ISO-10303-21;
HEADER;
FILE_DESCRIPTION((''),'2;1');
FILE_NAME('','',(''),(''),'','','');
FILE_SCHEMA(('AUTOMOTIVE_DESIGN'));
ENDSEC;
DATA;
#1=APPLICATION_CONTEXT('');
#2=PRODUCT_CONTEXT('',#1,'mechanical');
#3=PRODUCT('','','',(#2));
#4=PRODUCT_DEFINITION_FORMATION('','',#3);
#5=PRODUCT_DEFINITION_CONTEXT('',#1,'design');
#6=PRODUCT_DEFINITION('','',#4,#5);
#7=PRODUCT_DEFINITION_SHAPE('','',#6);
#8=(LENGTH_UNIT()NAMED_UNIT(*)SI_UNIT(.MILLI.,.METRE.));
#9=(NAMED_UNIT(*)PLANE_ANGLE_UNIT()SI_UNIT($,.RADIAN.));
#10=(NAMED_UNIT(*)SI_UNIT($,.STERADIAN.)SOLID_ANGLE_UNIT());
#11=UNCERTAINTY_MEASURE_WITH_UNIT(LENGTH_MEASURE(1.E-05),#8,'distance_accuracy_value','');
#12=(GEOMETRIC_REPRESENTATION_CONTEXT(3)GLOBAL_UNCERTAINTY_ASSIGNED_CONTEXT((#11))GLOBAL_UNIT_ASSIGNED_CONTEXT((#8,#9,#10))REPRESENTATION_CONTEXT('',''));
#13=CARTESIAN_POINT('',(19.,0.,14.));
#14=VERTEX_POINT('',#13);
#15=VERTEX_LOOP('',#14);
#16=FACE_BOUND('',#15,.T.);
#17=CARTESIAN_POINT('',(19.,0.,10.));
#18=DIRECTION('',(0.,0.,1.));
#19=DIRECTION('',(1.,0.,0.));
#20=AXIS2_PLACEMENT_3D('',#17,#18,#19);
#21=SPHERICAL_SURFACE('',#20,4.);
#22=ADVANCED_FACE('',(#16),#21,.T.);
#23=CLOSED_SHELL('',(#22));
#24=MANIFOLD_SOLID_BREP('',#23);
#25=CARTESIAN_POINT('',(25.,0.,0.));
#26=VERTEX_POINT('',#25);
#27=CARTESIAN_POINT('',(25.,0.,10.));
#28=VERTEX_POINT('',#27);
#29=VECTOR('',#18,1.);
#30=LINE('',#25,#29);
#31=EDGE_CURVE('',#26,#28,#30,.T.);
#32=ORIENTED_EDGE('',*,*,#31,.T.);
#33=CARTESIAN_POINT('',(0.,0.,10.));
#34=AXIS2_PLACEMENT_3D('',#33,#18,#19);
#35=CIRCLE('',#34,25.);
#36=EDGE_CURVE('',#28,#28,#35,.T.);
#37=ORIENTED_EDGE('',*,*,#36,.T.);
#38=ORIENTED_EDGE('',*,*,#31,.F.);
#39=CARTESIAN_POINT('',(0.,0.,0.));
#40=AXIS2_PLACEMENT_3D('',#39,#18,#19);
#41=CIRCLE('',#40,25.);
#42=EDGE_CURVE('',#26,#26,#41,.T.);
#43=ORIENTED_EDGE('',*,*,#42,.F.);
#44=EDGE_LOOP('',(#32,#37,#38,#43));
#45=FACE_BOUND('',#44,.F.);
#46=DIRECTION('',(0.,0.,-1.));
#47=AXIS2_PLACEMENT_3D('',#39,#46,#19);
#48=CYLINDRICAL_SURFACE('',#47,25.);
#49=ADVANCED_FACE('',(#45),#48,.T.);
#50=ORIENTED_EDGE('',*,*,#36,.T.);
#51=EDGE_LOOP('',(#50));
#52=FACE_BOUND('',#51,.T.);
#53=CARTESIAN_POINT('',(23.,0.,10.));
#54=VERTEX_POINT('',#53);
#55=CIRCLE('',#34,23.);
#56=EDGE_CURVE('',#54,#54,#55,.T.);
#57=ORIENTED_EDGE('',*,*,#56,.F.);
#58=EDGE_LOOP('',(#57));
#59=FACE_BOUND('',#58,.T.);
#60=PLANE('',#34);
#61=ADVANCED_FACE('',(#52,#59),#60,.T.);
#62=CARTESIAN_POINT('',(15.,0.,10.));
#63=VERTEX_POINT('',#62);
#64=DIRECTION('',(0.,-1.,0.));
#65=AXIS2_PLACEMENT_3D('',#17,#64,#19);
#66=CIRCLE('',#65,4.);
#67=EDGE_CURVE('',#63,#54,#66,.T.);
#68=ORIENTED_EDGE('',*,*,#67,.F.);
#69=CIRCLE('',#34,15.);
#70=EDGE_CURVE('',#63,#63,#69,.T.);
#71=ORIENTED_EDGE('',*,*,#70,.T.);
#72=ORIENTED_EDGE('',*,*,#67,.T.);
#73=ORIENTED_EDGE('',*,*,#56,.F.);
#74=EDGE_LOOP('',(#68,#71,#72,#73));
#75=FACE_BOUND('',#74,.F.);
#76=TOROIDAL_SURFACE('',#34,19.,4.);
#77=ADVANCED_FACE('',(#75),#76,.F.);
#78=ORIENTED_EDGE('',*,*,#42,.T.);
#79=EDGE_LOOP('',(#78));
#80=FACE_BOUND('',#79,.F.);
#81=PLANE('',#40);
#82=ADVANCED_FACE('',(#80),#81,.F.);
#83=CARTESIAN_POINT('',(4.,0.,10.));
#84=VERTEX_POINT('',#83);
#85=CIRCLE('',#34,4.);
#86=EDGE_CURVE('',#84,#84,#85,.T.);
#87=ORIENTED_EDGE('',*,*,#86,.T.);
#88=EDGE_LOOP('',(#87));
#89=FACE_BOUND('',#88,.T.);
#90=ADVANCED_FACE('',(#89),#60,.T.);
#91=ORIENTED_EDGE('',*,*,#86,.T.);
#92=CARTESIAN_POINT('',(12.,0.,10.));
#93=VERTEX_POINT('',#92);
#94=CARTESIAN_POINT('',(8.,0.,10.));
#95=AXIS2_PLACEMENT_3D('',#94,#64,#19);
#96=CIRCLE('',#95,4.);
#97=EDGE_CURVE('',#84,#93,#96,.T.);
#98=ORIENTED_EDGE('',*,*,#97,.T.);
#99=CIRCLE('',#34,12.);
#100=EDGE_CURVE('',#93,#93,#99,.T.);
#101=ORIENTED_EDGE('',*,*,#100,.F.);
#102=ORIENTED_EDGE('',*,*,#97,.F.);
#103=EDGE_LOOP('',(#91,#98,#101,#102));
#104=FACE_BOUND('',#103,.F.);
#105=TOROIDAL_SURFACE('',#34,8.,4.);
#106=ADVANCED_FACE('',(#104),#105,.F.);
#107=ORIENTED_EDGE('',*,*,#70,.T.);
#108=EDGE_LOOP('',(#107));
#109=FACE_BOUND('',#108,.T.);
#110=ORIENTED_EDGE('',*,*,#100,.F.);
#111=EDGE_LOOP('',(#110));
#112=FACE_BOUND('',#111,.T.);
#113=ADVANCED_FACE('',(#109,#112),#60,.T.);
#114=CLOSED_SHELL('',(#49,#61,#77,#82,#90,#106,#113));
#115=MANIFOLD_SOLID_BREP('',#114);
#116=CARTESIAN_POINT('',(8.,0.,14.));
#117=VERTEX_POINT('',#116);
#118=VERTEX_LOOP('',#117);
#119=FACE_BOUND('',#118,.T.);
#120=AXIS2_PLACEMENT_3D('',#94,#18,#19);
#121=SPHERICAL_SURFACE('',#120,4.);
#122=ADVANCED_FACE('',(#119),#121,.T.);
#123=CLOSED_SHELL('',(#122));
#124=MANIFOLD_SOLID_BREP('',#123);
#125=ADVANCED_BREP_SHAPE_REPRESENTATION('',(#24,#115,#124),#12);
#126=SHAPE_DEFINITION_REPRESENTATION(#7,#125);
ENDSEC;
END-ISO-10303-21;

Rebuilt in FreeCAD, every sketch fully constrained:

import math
import FreeCAD as App
import Part
import Sketcher

doc = App.newDocument("Part")
body = doc.addObject("PartDesign::Body", "Body")

sketch1 = body.newObject("Sketcher::SketchObject", "Sketch")
sketch1.AttachmentSupport = (doc.getObject("XZ_Plane"), [""])
sketch1.MapMode = "FlatFace"
sketch1.addGeometry(Part.Circle(App.Vector(8, 10, 0), App.Vector(0, 0, 1), 4), False)
sketch1.addConstraint(Sketcher.Constraint("Diameter", 0, 8.0))
sketch1.addConstraint(Sketcher.Constraint("DistanceX", -1, 1, 0, 3, 8.0))
sketch1.addConstraint(Sketcher.Constraint("DistanceY", -1, 1, 0, 3, 10.0))
revolution = body.newObject("PartDesign::Revolution", "Revolution")
revolution.Profile = sketch1
revolution.ReferenceAxis = (sketch1, ["V_Axis"])
revolution.Angle = 360
body2 = doc.addObject("PartDesign::Body", "Body001")

sketch2 = body2.newObject("Sketcher::SketchObject", "Sketch001")
sketch2.AttachmentSupport = (doc.getObject("XZ_Plane001"), [""])
sketch2.MapMode = "FlatFace"
sketch2.addGeometry(Part.Circle(App.Vector(19, 10, 0), App.Vector(0, 0, 1), 4), False)
sketch2.addConstraint(Sketcher.Constraint("Diameter", 0, 8.0))
sketch2.addConstraint(Sketcher.Constraint("DistanceX", -1, 1, 0, 3, 19.0))
sketch2.addConstraint(Sketcher.Constraint("DistanceY", -1, 1, 0, 3, 10.0))
revolution2 = body2.newObject("PartDesign::Revolution", "Revolution001")
revolution2.Profile = sketch2
revolution2.ReferenceAxis = (sketch2, ["V_Axis"])
revolution2.Angle = 360
body3 = doc.addObject("PartDesign::Body", "Body002")

sketch3 = body3.newObject("Sketcher::SketchObject", "Sketch002")
sketch3.AttachmentSupport = (doc.getObject("XY_Plane002"), [""])
sketch3.MapMode = "FlatFace"
sketch3.addGeometry(Part.Circle(App.Vector(0, 0, 0), App.Vector(0, 0, 1), 25), False)
sketch3.addConstraint(Sketcher.Constraint("Coincident", 0, 3, -1, 1))
sketch3.addConstraint(Sketcher.Constraint("Diameter", 0, 50.0))
pad1 = body3.newObject("PartDesign::Pad", "Pad")
pad1.Profile = sketch3
pad1.Length = 10
doc.recompute()

boolean = body3.newObject("PartDesign::Boolean", "Boolean")
boolean.Type = "Cut"
boolean.addObjects([body2])
doc.recompute()

boolean2 = body3.newObject("PartDesign::Boolean", "Boolean001")
boolean2.Type = "Cut"
boolean2.addObjects([body])
body4 = doc.addObject("PartDesign::Body", "Body003")

sketch4 = body4.newObject("Sketcher::SketchObject", "Sketch003")
sketch4.AttachmentSupport = (doc.getObject("XZ_Plane003"), [""])
sketch4.MapMode = "FlatFace"
sketch4.addGeometry(Part.ArcOfCircle(Part.Circle(App.Vector(8, 10, 0), App.Vector(0, 0, 1), 4), math.radians(-90), math.radians(90)), False)
sketch4.addGeometry(Part.LineSegment(App.Vector(8, 14, 0), App.Vector(8, 6, 0)), False)
sketch4.addGeometry(Part.LineSegment(App.Vector(8, 6, 0), App.Vector(8, 14, 0)), True)
sketch4.addConstraint(Sketcher.Constraint("Coincident", 0, 1, 1, 2))
sketch4.addConstraint(Sketcher.Constraint("Coincident", 1, 1, 0, 2))
sketch4.addConstraint(Sketcher.Constraint("Vertical", 1))
sketch4.addConstraint(Sketcher.Constraint("Vertical", 2))
sketch4.addConstraint(Sketcher.Constraint("Coincident", 2, 1, 0, 1))
sketch4.addConstraint(Sketcher.Constraint("Equal", 1, 2))
sketch4.addConstraint(Sketcher.Constraint("Radius", 0, 4.0))
sketch4.addConstraint(Sketcher.Constraint("DistanceX", -1, 1, 0, 3, 8.0))
sketch4.addConstraint(Sketcher.Constraint("DistanceY", -1, 1, 0, 3, 10.0))
sketch4.addConstraint(Sketcher.Constraint("DistanceX", -1, 1, 0, 1, 8.0))
revolution3 = body4.newObject("PartDesign::Revolution", "Revolution002")
revolution3.Profile = sketch4
revolution3.ReferenceAxis = (sketch4, ["Axis0"])
revolution3.Angle = 360
body5 = doc.addObject("PartDesign::Body", "Body004")

sketch5 = body5.newObject("Sketcher::SketchObject", "Sketch004")
sketch5.AttachmentSupport = (doc.getObject("XZ_Plane004"), [""])
sketch5.MapMode = "FlatFace"
sketch5.addGeometry(Part.ArcOfCircle(Part.Circle(App.Vector(19, 10, 0), App.Vector(0, 0, 1), 4), math.radians(-90), math.radians(90)), False)
sketch5.addGeometry(Part.LineSegment(App.Vector(19, 14, 0), App.Vector(19, 6, 0)), False)
sketch5.addGeometry(Part.LineSegment(App.Vector(19, 6, 0), App.Vector(19, 14, 0)), True)
sketch5.addConstraint(Sketcher.Constraint("Coincident", 0, 1, 1, 2))
sketch5.addConstraint(Sketcher.Constraint("Coincident", 1, 1, 0, 2))
sketch5.addConstraint(Sketcher.Constraint("Vertical", 1))
sketch5.addConstraint(Sketcher.Constraint("Vertical", 2))
sketch5.addConstraint(Sketcher.Constraint("Coincident", 2, 1, 0, 1))
sketch5.addConstraint(Sketcher.Constraint("Equal", 1, 2))
sketch5.addConstraint(Sketcher.Constraint("Radius", 0, 4.0))
sketch5.addConstraint(Sketcher.Constraint("DistanceX", -1, 1, 0, 3, 19.0))
sketch5.addConstraint(Sketcher.Constraint("DistanceY", -1, 1, 0, 3, 10.0))
sketch5.addConstraint(Sketcher.Constraint("DistanceX", -1, 1, 0, 1, 19.0))
revolution4 = body5.newObject("PartDesign::Revolution", "Revolution003")
revolution4.Profile = sketch5
revolution4.ReferenceAxis = (sketch5, ["Axis0"])
revolution4.Angle = 360

doc.recompute()
